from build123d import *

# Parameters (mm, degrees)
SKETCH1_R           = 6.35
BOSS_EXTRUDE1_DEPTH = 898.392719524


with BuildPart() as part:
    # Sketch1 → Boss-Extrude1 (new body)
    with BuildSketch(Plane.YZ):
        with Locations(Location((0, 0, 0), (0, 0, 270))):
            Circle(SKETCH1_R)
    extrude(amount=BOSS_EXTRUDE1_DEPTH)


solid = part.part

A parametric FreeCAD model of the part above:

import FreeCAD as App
import Part
import Sketcher
from FreeCAD import Vector
Q = App.Units.Quantity

doc = App.newDocument("Part")
body = doc.addObject("PartDesign::Body", "Body")

# Sketch on YZ plane
sketch1 = doc.addObject("Sketcher::SketchObject", "Sketch")
body.addObject(sketch1)
sketch1.AttachmentSupport = (doc.YZ_Plane, [""])
sketch1.MapMode = "FlatFace"
sketch1.addGeometry(Part.Circle(Vector(0, 0, 0), Vector(0, 0, 1), 6), False)
sketch1.addConstraint([
    Sketcher.Constraint("Coincident", 0, 3, -1, 1),
    Sketcher.Constraint("Diameter", 0, Q("0.5 in")),
])
pad1 = doc.addObject("PartDesign::Pad", "Pad")
body.addObject(pad1)
pad1.Profile = sketch1
pad1.Length = 898.39272

doc.recompute()
